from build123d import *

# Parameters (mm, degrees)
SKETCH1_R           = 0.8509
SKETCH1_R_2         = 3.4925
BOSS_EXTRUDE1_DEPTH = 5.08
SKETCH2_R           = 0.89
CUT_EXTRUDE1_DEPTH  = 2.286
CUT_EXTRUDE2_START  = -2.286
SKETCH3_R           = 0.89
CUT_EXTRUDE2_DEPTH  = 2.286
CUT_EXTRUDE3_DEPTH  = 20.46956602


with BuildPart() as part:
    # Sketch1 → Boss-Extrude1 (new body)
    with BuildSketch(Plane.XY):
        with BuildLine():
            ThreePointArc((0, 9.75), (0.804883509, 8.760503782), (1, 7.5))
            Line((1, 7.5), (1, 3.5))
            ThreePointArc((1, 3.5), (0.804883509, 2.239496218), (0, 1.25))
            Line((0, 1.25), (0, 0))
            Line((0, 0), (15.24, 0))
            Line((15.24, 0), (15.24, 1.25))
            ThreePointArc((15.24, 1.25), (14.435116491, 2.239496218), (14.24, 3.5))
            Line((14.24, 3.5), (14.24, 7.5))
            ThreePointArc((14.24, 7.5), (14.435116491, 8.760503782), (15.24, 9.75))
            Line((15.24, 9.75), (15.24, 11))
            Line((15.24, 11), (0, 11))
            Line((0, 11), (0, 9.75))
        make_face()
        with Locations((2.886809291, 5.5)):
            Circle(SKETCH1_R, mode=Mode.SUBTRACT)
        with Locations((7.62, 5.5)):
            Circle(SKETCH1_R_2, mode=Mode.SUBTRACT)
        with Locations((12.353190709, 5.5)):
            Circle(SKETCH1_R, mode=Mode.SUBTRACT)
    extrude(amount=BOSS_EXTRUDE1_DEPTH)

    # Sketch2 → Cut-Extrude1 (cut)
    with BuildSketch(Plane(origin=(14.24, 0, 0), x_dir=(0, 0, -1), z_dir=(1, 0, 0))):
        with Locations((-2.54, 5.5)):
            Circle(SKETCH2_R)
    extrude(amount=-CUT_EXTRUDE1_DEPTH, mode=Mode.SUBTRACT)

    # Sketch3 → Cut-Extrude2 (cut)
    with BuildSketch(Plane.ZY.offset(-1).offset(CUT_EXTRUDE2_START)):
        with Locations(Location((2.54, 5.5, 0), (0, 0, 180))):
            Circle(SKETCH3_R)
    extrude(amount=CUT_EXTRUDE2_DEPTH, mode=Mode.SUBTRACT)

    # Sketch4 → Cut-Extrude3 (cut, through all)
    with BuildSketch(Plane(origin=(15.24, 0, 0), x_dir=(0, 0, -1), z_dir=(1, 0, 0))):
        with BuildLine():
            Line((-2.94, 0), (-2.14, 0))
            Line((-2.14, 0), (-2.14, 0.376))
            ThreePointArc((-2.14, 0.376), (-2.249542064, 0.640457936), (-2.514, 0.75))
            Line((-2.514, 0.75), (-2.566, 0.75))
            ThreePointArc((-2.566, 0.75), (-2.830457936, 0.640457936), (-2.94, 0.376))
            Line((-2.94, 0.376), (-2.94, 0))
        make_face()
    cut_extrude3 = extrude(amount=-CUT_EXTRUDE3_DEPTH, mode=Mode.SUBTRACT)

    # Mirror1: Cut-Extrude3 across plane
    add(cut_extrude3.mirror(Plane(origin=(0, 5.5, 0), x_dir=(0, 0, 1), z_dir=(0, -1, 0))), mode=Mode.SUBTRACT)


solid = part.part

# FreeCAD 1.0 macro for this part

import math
import FreeCAD as App
import Part
import Sketcher

V = App.Vector
Q = App.Units.Quantity

doc = App.newDocument("Part")
body = doc.addObject("PartDesign::Body", "Body")

# Sketch on XY plane
sketch1 = doc.addObject("Sketcher::SketchObject", "Sketch")
body.addObject(sketch1)
sketch1.AttachmentSupport = (doc.XY_Plane, [""])
sketch1.MapMode = "FlatFace"
sketch1.addGeometry(Part.ArcOfCircle(Part.Circle(V(-1.423146, 7.770268, 0), V(0, 0, 1), 2.438172), math.radians(-6.364247), math.radians(54.289225)), False)
sketch1.addGeometry(Part.LineSegment(V(1, 7.5, 0), V(1, 3.5, 0)), False)
sketch1.addGeometry(Part.ArcOfCircle(Part.Circle(V(-1.423146, 3.229732, 0), V(0, 0, 1), 2.438172), math.radians(-54.289225), math.radians(6.364247)), False)
sketch1.addGeometry(Part.LineSegment(V(0, 1.25, 0), V(0, 0, 0)), False)
sketch1.addGeometry(Part.LineSegment(V(0, 0, 0), V(15.24, 0, 0)), False)
sketch1.addGeometry(Part.LineSegment(V(15.24, 0, 0), V(15.24, 1.25, 0)), False)
sketch1.addGeometry(Part.ArcOfCircle(Part.Circle(V(16.663146, 3.229732, 0), V(0, 0, 1), 2.438172), math.radians(173.635753), math.radians(234.289225)), False)
sketch1.addGeometry(Part.LineSegment(V(14.24, 3.5, 0), V(14.24, 7.5, 0)), False)
sketch1.addGeometry(Part.ArcOfCircle(Part.Circle(V(16.663146, 7.770268, 0), V(0, 0, 1), 2.438172), math.radians(125.710775), math.radians(186.364247)), False)
sketch1.addGeometry(Part.LineSegment(V(15.24, 9.75, 0), V(15.24, 11, 0)), False)
sketch1.addGeometry(Part.LineSegment(V(15.24, 11, 0), V(0, 11, 0)), False)
sketch1.addGeometry(Part.LineSegment(V(0, 11, 0), V(0, 9.75, 0)), False)
sketch1.addGeometry(Part.Circle(V(2.886809, 5.5, 0), V(0, 0, 1), 0.8509), False)
sketch1.addGeometry(Part.Circle(V(7.62, 5.5, 0), V(0, 0, 1), 3.4925), False)
sketch1.addGeometry(Part.Circle(V(12.353191, 5.5, 0), V(0, 0, 1), 0.8509), False)
sketch1.addConstraint(Sketcher.Constraint("Coincident", 0, 1, 1, 1))
sketch1.addConstraint(Sketcher.Constraint("Coincident", 1, 2, 2, 2))
sketch1.addConstraint(Sketcher.Constraint("Coincident", 2, 1, 3, 1))
sketch1.addConstraint(Sketcher.Constraint("Coincident", 3, 2, 4, 1))
sketch1.addConstraint(Sketcher.Constraint("Coincident", 4, 2, 5, 1))
sketch1.addConstraint(Sketcher.Constraint("Coincident", 5, 2, 6, 2))
sketch1.addConstraint(Sketcher.Constraint("Coincident", 6, 1, 7, 1))
sketch1.addConstraint(Sketcher.Constraint("Coincident", 7, 2, 8, 2))
sketch1.addConstraint(Sketcher.Constraint("Coincident", 8, 1, 9, 1))
sketch1.addConstraint(Sketcher.Constraint("Coincident", 9, 2, 10, 1))
sketch1.addConstraint(Sketcher.Constraint("Coincident", 10, 2, 11, 1))
sketch1.addConstraint(Sketcher.Constraint("Coincident", 11, 2, 0, 2))
sketch1.addConstraint(Sketcher.Constraint("Vertical", 1))
sketch1.addConstraint(Sketcher.Constraint("Vertical", 3))
sketch1.addConstraint(Sketcher.Constraint("Horizontal", 4))
sketch1.addConstraint(Sketcher.Constraint("Vertical", 5))
sketch1.addConstraint(Sketcher.Constraint("Vertical", 7))
sketch1.addConstraint(Sketcher.Constraint("Vertical", 9))
sketch1.addConstraint(Sketcher.Constraint("Horizontal", 10))
sketch1.addConstraint(Sketcher.Constraint("Vertical", 11))
sketch1.addConstraint(Sketcher.Constraint("Coincident", 3, 2, -1, 1))
sketch1.addConstraint(Sketcher.Constraint("Equal", 0, 2))
sketch1.addConstraint(Sketcher.Constraint("Equal", 2, 6))
sketch1.addConstraint(Sketcher.Constraint("Equal", 6, 8))
sketch1.addConstraint(Sketcher.Constraint("Equal", 12, 14))
sketch1.addConstraint(Sketcher.Constraint("PointOnObject", 10, 2, -2))
sketch1.addConstraint(Sketcher.Constraint("Horizontal", 2, 3, 6, 3))
sketch1.addConstraint(Sketcher.Constraint("Horizontal", 0, 3, 8, 3))
sketch1.addConstraint(Sketcher.Constraint("Horizontal", 12, 3, 13, 3))
sketch1.addConstraint(Sketcher.Constraint("Horizontal", 13, 3, 14, 3))
sketch1.addConstraint(Sketcher.Constraint("Horizontal", 2, 1, 5, 2))
sketch1.addConstraint(Sketcher.Constraint("Horizontal", 1, 2, 6, 1))
sketch1.addConstraint(Sketcher.Constraint("Horizontal", 0, 1, 7, 2))
sketch1.addConstraint(Sketcher.Constraint("Horizontal", 8, 1, 11, 2))
sketch1.addConstraint(Sketcher.Constraint("Vertical", 0, 3, 2, 3))
sketch1.addConstraint(Sketcher.Constraint("Equal", 5, 9))
sketch1.addConstraint(Sketcher.Constraint("Diameter", 12, Q("0.067 in")))
sketch1.addConstraint(Sketcher.Constraint("Diameter", 13, Q("0.275 in")))
sketch1.addConstraint(Sketcher.Constraint("DistanceX", 4, 1, 4, 2, Q("0.6 in")))
sketch1.addConstraint(Sketcher.Constraint("DistanceX", -1, 1, 13, 3, Q("0.3 in")))
sketch1.addConstraint(Sketcher.Constraint("Radius", 0, Q("2.438172 mm")))
sketch1.addConstraint(Sketcher.Constraint("DistanceY", 1, 2, 1, 1, Q("4 mm")))
sketch1.addConstraint(Sketcher.Constraint("DistanceY", 3, 2, 3, 1, Q("1.25 mm")))
sketch1.addConstraint(Sketcher.Constraint("DistanceY", -1, 1, 12, 3, Q("5.5 mm")))
sketch1.addConstraint(Sketcher.Constraint("DistanceX", -1, 1, 0, 1, Q("1 mm")))
sketch1.addConstraint(Sketcher.Constraint("DistanceY", -1, 1, 0, 1, Q("7.5 mm")))
sketch1.addConstraint(Sketcher.Constraint("DistanceX", -1, 1, 12, 3, Q("2.886809 mm")))
sketch1.addConstraint(Sketcher.Constraint("DistanceX", -1, 1, 14, 3, Q("12.353191 mm")))
pad1 = doc.addObject("PartDesign::Pad", "Pad")
body.addObject(pad1)
pad1.Profile = sketch1
pad1.Length = Q("0.2 in")

# Sketch on YZ plane
sketch2 = doc.addObject("Sketcher::SketchObject", "Sketch001")
body.addObject(sketch2)
sketch2.AttachmentSupport = (doc.YZ_Plane, [""])
sketch2.MapMode = "FlatFace"
sketch2.AttachmentOffset = App.Placement(V(0, 0, 14.24), App.Rotation())
sketch2.addGeometry(Part.Circle(V(5.5, 2.54, 0), V(0, 0, 1), 0.89), False)
sketch2.addConstraint(Sketcher.Constraint("DistanceY", -1, 1, 0, 3, Q("0.1 in")))
sketch2.addConstraint(Sketcher.Constraint("Diameter", 0, Q("1.78 mm")))
sketch2.addConstraint(Sketcher.Constraint("DistanceX", -1, 1, 0, 3, Q("5.5 mm")))
pocket1 = doc.addObject("PartDesign::Pocket", "Pocket")
body.addObject(pocket1)
pocket1.Profile = sketch2
pocket1.Length = Q("0.09 in")

# Sketch on YZ plane
sketch3 = doc.addObject("Sketcher::SketchObject", "Sketch002")
body.addObject(sketch3)
sketch3.AttachmentSupport = (doc.YZ_Plane, [""])
sketch3.MapMode = "FlatFace"
sketch3.AttachmentOffset = App.Placement(V(0, 0, 3.286), App.Rotation())
sketch3.addGeometry(Part.Circle(V(5.5, 2.54, 0), V(0, 0, 1), 0.89), False)
sketch3.addConstraint(Sketcher.Constraint("DistanceY", -1, 1, 0, 3, Q("0.1 in")))
sketch3.addConstraint(Sketcher.Constraint("Diameter", 0, Q("1.78 mm")))
sketch3.addConstraint(Sketcher.Constraint("DistanceX", -1, 1, 0, 3, Q("5.5 mm")))
pocket2 = doc.addObject("PartDesign::Pocket", "Pocket001")
body.addObject(pocket2)
pocket2.Profile = sketch3
pocket2.Length = Q("0.09 in")

# Sketch on YZ plane
sketch4 = doc.addObject("Sketcher::SketchObject", "Sketch003")
body.addObject(sketch4)
sketch4.AttachmentSupport = (doc.YZ_Plane, [""])
sketch4.MapMode = "FlatFace"
sketch4.AttachmentOffset = App.Placement(V(0, 0, 0.6 * 25.4), App.Rotation())
sketch4.addGeometry(Part.LineSegment(V(0, 2.94, 0), V(0, 2.14, 0)), False)
sketch4.addGeometry(Part.LineSegment(V(0, 2.14, 0), V(0.376, 2.14, 0)), False)
sketch4.addGeometry(Part.ArcOfCircle(Part.Circle(V(0.376, 2.514, 0), V(0, 0, 1), 0.374), math.radians(-90), math.radians(0)), False)
sketch4.addGeometry(Part.LineSegment(V(0.75, 2.514, 0), V(0.75, 2.566, 0)), False)
sketch4.addGeometry(Part.ArcOfCircle(Part.Circle(V(0.376, 2.566, 0), V(0, 0, 1), 0.374), math.radians(0), math.radians(90)), False)
sketch4.addGeometry(Part.LineSegment(V(0.376, 2.94, 0), V(0, 2.94, 0)), False)
sketch4.addConstraint(Sketcher.Constraint("Coincident", 0, 2, 1, 1))
sketch4.addConstraint(Sketcher.Constraint("Tangent", 1, 2, 2, 1))
sketch4.addConstraint(Sketcher.Constraint("Tangent", 2, 2, 3, 1))
sketch4.addConstraint(Sketcher.Constraint("Tangent", 3, 2, 4, 1))
sketch4.addConstraint(Sketcher.Constraint("Tangent", 4, 2, 5, 1))
sketch4.addConstraint(Sketcher.Constraint("Coincident", 5, 2, 0, 1))
sketch4.addConstraint(Sketcher.Constraint("Vertical", 0))
sketch4.addConstraint(Sketcher.Constraint("Horizontal", 1))
sketch4.addConstraint(Sketcher.Constraint("Vertical", 3))
sketch4.addConstraint(Sketcher.Constraint("Horizontal", 5))
sketch4.addConstraint(Sketcher.Constraint("Equal", 2, 4))
sketch4.addConstraint(Sketcher.Constraint("PointOnObject", 0, 2, -2))
sketch4.addConstraint(Sketcher.Constraint("Radius", 2, Q("0.374 mm")))
sketch4.addConstraint(Sketcher.Constraint("DistanceX", 1, 1, 1, 2, Q("0.376 mm")))
sketch4.addConstraint(Sketcher.Constraint("DistanceY", 0, 2, 0, 1, Q("0.8 mm")))
sketch4.addConstraint(Sketcher.Constraint("DistanceY", -1, 1, 2, 3, Q("2.514 mm")))
pocket3 = doc.addObject("PartDesign::Pocket", "Pocket002")
body.addObject(pocket3)
pocket3.Profile = sketch4
pocket3.Type = "ThroughAll"
doc.recompute()

datumplane = doc.addObject("PartDesign::Plane", "DatumPlane")
body.addObject(datumplane)
datumplane.AttachmentSupport = (doc.XZ_Plane, [""])
datumplane.MapMode = "FlatFace"
datumplane.AttachmentOffset = App.Placement(V(0, 0, -5.5), App.Rotation())
mirrored = doc.addObject("PartDesign::Mirrored", "Mirrored")
body.addObject(mirrored)
mirrored.Originals = [pocket3]
mirrored.MirrorPlane = (datumplane, [""])
body.Tip = mirrored

doc.recompute()
